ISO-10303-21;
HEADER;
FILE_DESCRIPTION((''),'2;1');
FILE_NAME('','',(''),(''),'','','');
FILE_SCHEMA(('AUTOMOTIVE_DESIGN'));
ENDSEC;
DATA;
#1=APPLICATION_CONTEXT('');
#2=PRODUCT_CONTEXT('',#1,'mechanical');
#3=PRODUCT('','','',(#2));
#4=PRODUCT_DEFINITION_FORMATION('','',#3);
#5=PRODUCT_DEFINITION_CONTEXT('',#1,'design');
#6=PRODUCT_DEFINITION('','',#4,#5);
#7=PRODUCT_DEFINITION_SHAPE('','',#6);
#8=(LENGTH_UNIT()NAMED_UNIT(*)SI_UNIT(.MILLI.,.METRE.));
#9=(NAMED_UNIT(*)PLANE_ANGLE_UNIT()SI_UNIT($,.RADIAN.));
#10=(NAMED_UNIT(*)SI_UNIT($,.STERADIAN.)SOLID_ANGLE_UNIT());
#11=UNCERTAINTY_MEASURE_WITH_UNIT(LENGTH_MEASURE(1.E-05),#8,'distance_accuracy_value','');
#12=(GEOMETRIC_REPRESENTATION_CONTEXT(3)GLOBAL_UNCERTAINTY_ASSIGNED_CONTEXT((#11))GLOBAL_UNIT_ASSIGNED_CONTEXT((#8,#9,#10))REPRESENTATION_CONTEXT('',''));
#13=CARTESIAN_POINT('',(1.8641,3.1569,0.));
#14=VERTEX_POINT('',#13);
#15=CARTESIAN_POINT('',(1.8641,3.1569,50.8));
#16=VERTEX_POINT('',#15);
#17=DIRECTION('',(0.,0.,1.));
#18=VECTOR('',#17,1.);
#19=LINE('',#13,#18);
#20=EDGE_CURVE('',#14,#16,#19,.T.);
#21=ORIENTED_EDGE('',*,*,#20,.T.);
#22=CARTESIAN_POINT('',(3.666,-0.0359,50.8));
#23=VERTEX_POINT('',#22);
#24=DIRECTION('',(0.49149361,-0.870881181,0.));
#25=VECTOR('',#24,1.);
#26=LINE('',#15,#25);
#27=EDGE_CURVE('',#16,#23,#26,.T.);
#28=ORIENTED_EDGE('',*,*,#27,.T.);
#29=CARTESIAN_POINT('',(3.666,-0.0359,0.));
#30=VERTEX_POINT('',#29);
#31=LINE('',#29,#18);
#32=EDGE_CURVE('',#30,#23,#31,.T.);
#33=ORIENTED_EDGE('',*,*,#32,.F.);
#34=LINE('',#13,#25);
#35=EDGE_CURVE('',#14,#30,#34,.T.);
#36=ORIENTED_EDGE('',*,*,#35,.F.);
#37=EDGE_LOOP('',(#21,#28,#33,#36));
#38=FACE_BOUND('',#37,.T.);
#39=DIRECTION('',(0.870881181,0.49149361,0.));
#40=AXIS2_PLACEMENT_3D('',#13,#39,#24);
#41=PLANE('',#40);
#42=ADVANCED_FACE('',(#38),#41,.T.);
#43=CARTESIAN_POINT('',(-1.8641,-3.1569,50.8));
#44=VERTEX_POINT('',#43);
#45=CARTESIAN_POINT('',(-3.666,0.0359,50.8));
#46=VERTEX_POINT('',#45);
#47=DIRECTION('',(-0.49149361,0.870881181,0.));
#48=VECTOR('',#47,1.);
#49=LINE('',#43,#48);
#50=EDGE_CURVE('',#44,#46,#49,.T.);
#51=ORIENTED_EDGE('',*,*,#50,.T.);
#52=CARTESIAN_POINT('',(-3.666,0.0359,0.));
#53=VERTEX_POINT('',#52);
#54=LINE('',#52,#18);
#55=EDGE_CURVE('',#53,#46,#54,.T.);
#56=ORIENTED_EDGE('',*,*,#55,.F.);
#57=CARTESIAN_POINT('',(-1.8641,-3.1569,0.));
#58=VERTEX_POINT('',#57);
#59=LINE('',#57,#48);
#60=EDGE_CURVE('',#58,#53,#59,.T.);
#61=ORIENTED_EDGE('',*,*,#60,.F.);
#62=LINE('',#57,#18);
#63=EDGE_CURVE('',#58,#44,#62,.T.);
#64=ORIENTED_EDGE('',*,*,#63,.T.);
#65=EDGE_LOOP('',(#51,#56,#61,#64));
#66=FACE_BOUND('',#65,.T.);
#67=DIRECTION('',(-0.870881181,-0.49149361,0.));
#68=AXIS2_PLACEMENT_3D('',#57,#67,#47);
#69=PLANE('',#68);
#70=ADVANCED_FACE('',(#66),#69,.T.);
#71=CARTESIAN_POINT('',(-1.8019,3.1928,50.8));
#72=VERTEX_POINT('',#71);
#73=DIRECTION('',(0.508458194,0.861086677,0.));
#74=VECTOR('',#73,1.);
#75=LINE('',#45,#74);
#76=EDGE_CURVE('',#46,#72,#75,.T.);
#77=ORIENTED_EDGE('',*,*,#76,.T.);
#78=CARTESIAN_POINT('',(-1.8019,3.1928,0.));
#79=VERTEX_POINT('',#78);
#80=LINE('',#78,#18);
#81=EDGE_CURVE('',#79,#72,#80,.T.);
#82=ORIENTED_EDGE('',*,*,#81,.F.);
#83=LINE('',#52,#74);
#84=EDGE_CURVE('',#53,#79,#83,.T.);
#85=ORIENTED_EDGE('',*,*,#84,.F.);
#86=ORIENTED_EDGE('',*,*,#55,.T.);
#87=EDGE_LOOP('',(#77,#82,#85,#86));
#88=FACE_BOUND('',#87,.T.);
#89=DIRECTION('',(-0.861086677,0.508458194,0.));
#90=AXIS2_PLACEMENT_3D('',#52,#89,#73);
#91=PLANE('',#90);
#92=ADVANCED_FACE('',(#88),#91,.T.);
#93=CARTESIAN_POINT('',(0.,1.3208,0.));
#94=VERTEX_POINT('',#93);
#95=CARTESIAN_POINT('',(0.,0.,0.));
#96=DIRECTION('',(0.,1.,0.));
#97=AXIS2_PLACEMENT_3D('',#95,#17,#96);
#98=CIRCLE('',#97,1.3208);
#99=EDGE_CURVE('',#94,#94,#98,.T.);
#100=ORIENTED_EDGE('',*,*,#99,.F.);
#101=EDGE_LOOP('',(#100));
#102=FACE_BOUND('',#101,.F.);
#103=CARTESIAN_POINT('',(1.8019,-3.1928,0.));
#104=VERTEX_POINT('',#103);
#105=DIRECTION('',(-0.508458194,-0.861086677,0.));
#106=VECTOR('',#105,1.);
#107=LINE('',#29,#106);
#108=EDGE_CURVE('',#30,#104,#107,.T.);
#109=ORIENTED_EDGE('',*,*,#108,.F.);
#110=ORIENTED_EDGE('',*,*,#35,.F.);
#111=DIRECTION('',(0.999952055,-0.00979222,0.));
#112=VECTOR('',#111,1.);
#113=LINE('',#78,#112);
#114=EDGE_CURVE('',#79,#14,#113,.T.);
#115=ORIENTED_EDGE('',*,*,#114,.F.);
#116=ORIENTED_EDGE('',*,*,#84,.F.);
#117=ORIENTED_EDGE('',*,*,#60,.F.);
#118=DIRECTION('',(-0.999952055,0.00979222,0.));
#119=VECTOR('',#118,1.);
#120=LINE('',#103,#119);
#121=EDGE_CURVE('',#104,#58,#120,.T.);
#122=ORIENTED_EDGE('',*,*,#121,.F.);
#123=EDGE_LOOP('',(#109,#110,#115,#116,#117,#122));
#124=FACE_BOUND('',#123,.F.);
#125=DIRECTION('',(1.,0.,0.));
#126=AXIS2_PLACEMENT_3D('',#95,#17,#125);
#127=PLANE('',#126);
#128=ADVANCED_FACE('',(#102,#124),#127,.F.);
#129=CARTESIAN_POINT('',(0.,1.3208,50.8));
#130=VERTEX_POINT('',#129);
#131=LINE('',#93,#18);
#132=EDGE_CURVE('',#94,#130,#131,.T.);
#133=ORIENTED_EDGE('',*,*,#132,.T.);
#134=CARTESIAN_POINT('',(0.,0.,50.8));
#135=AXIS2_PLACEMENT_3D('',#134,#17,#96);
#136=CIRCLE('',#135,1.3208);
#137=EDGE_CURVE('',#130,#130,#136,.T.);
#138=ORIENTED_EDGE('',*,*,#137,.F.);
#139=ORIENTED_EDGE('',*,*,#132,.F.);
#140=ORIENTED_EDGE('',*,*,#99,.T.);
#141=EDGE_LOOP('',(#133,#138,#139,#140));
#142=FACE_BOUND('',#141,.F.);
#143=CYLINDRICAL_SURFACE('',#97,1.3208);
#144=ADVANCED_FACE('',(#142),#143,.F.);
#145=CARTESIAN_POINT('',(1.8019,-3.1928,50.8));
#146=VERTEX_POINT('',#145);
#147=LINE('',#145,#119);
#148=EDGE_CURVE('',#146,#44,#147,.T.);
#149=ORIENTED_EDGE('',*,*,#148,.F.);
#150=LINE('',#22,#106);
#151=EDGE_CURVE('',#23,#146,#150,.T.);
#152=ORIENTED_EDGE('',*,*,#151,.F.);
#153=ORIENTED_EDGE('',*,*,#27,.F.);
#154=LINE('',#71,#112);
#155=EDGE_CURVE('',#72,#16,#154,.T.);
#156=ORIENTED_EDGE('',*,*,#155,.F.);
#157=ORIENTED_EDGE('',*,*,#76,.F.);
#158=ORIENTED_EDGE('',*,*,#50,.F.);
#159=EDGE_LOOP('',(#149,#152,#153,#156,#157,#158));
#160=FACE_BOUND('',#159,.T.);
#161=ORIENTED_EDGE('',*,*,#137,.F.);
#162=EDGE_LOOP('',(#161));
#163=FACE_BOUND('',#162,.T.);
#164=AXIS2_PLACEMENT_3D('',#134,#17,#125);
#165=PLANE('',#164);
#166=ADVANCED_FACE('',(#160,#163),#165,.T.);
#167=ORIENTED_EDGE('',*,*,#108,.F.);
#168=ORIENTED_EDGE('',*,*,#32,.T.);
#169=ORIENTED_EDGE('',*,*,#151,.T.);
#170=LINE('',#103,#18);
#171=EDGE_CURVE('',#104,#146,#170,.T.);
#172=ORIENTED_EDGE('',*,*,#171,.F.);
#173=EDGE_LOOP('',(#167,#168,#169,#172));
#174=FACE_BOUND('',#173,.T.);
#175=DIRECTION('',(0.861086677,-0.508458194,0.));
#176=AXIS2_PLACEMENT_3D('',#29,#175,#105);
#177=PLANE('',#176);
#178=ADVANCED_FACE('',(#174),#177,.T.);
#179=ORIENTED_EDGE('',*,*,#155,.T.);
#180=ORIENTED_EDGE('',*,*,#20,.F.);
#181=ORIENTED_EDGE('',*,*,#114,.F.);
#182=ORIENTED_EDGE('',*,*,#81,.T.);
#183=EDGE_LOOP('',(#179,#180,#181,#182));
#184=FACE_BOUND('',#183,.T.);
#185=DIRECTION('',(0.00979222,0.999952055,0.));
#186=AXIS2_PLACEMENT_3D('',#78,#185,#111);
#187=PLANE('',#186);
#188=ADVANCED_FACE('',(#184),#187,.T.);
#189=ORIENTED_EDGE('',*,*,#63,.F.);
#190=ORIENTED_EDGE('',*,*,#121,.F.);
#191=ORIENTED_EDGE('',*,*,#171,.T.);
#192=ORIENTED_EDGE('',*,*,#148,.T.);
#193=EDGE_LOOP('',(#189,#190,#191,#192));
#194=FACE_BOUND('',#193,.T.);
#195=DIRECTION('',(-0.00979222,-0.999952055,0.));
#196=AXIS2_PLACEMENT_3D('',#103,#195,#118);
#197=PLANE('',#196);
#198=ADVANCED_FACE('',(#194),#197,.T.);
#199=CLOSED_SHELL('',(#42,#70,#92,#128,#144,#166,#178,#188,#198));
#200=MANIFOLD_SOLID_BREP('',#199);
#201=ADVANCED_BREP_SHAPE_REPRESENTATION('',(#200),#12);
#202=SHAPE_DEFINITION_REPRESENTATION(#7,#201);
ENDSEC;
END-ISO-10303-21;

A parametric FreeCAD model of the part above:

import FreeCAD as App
import Part
import Sketcher
from FreeCAD import Vector
Q = App.Units.Quantity

doc = App.newDocument("Part")
body = doc.addObject("PartDesign::Body", "Body")

# Sketch on XY plane
sketch1 = doc.addObject("Sketcher::SketchObject", "Sketch")
body.addObject(sketch1)
sketch1.AttachmentSupport = (doc.XY_Plane, [""])
sketch1.MapMode = "FlatFace"
sketch1.addGeometry(Part.LineSegment(Vector(3.7, 0, 0), Vector(1.9, 3.2, 0)), False)
sketch1.addGeometry(Part.LineSegment(Vector(1.9, 3.2, 0), Vector(-1.8, 3.2, 0)), False)
sketch1.addGeometry(Part.LineSegment(Vector(-1.8, 3.2, 0), Vector(-3.7, 0, 0)), False)
sketch1.addGeometry(Part.LineSegment(Vector(-3.7, 0, 0), Vector(-1.9, -3.2, 0)), False)
sketch1.addGeometry(Part.LineSegment(Vector(-1.9, -3.2, 0), Vector(1.8, -3.2, 0)), False)
sketch1.addGeometry(Part.LineSegment(Vector(1.8, -3.2, 0), Vector(3.7, 0, 0)), False)
sketch1.addConstraint(Sketcher.Constraint("Coincident", 0, 2, 1, 1))
sketch1.addConstraint(Sketcher.Constraint("Coincident", 1, 2, 2, 1))
sketch1.addConstraint(Sketcher.Constraint("Coincident", 2, 2, 3, 1))
sketch1.addConstraint(Sketcher.Constraint("Coincident", 3, 2, 4, 1))
sketch1.addConstraint(Sketcher.Constraint("Coincident", 4, 2, 5, 1))
sketch1.addConstraint(Sketcher.Constraint("Coincident", 5, 2, 0, 1))
sketch1.addConstraint(Sketcher.Constraint("Symmetric", 0, 2, 3, 2, -1, 1))
sketch1.addConstraint(Sketcher.Constraint("Symmetric", 1, 2, 4, 2, -1, 1))
sketch1.addConstraint(Sketcher.Constraint("Symmetric", 2, 2, 5, 2, -1, 1))
sketch1.addConstraint(Sketcher.Constraint("Equal", 0, 1))
sketch1.addConstraint(Sketcher.Constraint("Equal", 1, 2))
sketch1.addConstraint(Sketcher.Constraint("DistanceY", 3, 2, 1, 2, Q("0.25 in")))
sketch1.addConstraint(Sketcher.Constraint("Angle", 1, Q("179.439 deg")))
sketch1.addConstraint(Sketcher.Constraint("Angle", 2, Q("-120.5612 deg")))
sketch1.addConstraint(Sketcher.Constraint("DistanceX", -1, 1, 0, 2, Q("0.0734 in")))
pad1 = doc.addObject("PartDesign::Pad", "Pad")
body.addObject(pad1)
pad1.Profile = sketch1
pad1.Length = Q("2 in")

# Sketch on XY plane
sketch2 = doc.addObject("Sketcher::SketchObject", "Sketch001")
body.addObject(sketch2)
sketch2.AttachmentSupport = (doc.XY_Plane, [""])
sketch2.MapMode = "FlatFace"
sketch2.addGeometry(Part.Circle(Vector(0, 0, 0), Vector(0, 0, 1), 1.3), False)
sketch2.addConstraint(Sketcher.Constraint("Coincident", 0, 3, -1, 1))
sketch2.addConstraint(Sketcher.Constraint("Diameter", 0, Q("0.104 in")))
doc.recompute()
hole = doc.addObject("PartDesign::Hole", "Hole")
body.addObject(hole)
hole.Profile = sketch2
hole.ThreadType = "None"
hole.Diameter = Q("0.104 in")
hole.DepthType = "Dimension"
hole.Depth = Q("2.25 in")
hole.DrillPoint = "Angled"
hole.DrillPointAngle = 118
hole.Reversed = True

doc.recompute()
